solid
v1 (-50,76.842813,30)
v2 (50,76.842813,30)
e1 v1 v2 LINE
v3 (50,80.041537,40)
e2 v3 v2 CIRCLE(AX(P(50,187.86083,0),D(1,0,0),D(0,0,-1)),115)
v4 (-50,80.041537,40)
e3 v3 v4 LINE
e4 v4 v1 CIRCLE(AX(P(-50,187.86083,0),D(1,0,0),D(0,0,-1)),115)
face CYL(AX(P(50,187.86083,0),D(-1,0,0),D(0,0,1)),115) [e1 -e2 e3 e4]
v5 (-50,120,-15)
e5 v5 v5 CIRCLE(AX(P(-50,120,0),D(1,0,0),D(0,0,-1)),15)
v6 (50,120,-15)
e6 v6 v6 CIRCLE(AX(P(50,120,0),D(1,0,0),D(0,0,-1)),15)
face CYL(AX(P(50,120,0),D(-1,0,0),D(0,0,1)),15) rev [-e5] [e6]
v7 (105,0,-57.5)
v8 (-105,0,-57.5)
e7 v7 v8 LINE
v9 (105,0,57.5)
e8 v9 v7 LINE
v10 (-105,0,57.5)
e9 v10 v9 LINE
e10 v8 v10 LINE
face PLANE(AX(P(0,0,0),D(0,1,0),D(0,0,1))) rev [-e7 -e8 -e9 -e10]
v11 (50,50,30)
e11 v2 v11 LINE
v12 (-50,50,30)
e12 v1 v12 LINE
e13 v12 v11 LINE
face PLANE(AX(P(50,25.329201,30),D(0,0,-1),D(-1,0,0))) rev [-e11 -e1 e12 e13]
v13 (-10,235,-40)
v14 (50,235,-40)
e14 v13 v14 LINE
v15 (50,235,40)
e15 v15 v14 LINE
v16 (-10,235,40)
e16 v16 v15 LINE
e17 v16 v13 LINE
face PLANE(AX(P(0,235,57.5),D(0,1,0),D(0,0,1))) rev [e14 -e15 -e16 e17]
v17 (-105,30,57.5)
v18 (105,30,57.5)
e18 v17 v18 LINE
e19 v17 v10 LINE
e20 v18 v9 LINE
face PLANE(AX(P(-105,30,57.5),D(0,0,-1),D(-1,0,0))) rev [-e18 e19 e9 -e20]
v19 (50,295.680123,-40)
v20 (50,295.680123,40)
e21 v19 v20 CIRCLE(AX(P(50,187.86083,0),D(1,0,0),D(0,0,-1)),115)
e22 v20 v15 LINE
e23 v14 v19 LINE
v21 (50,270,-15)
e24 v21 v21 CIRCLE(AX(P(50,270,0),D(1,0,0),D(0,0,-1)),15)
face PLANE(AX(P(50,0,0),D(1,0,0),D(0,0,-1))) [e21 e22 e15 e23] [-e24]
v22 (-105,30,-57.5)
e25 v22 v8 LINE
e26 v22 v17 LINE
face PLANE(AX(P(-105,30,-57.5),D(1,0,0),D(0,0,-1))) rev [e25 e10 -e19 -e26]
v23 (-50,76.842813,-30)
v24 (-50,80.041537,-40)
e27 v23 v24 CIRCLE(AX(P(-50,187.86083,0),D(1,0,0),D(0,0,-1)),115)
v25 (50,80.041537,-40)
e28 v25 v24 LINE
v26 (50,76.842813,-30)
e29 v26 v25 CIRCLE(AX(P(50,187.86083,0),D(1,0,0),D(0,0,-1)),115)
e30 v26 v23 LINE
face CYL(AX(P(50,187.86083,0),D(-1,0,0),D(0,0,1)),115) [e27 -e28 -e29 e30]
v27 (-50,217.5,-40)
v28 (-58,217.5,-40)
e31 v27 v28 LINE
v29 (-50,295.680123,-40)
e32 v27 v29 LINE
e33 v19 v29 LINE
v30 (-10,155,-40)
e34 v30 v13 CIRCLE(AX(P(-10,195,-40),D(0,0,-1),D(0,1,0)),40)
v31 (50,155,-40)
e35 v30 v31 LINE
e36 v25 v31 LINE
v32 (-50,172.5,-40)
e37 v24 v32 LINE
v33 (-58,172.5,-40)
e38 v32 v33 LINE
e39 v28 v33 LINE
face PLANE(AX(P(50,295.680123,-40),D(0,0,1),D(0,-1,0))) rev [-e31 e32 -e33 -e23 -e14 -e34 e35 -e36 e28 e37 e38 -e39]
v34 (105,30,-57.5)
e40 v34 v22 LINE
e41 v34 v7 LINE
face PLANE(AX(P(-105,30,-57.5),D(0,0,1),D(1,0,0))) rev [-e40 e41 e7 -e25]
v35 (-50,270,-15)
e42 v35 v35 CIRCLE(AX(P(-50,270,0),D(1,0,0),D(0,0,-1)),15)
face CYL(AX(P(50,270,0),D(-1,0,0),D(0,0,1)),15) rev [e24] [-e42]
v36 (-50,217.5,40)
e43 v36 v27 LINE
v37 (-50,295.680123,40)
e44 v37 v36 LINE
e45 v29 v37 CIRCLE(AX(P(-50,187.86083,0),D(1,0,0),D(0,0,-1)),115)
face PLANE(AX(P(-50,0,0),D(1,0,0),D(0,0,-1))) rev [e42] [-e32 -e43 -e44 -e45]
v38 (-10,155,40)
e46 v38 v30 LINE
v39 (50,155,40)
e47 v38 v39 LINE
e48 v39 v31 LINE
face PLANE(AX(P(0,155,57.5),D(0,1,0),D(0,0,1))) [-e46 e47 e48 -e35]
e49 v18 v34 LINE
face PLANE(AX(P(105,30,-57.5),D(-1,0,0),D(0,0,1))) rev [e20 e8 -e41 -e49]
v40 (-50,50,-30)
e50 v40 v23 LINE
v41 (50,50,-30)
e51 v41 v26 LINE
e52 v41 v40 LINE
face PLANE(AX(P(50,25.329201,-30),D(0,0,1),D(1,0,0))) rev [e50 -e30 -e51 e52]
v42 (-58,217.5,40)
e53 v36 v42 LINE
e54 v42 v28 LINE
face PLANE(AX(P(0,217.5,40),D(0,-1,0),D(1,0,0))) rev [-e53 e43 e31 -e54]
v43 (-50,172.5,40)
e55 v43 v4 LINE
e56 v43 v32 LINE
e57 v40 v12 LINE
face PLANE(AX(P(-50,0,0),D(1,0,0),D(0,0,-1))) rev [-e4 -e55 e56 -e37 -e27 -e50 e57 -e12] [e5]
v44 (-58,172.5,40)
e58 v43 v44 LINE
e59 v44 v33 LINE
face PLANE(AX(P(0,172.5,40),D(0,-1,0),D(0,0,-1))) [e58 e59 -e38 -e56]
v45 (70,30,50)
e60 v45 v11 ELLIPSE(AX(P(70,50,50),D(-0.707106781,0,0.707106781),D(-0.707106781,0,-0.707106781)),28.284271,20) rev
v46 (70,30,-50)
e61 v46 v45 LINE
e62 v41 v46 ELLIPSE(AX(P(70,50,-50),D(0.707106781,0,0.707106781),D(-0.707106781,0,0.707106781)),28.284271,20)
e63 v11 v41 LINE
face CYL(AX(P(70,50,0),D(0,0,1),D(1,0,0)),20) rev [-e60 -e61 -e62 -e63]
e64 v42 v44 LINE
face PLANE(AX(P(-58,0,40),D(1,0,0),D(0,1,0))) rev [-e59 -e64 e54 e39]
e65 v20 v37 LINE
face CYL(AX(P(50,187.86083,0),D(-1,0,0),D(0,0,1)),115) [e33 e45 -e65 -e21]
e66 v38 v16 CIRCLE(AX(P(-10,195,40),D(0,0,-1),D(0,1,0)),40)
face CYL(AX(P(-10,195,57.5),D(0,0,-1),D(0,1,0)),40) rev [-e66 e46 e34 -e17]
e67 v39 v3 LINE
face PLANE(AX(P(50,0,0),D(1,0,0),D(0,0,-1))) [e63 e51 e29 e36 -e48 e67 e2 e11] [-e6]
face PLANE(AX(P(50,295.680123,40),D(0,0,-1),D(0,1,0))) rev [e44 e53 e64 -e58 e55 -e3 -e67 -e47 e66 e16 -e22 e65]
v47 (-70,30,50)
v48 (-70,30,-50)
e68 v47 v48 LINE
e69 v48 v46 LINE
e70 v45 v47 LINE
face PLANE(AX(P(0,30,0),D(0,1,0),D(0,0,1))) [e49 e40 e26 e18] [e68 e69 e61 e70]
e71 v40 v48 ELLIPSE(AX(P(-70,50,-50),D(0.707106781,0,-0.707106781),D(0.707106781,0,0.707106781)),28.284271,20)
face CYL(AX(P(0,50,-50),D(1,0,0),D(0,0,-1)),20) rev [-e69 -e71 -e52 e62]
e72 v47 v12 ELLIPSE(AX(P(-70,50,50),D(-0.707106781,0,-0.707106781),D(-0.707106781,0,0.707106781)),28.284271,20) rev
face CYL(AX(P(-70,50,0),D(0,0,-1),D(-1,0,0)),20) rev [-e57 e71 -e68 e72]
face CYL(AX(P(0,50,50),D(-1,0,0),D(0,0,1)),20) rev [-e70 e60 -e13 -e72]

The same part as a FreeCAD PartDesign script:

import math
import FreeCAD as App
import Part
import Sketcher
from FreeCAD import Vector
Q = App.Units.Quantity


def edges_at(feature, points):
    """Names of the edges that pass closest to the given points."""
    edges = feature.Shape.Edges
    near = lambda p: min(range(len(edges)), key=lambda i: edges[i].distToShape(Part.Vertex(*p))[0])
    return sorted({f"Edge{near(p) + 1}" for p in points})

doc = App.newDocument("Part")
params = doc.addObject("Spreadsheet::Sheet", "Params")
for row, (alias, value) in enumerate([
    ("sketch1_width", "210 mm"),
    ("sketch1_height", "115 mm"),
    ("pad1_length", "30 mm"),
    ("sketch2_width", "60 mm"),
    ("pad2_length", "100 mm"),
    ("sketch3_diameter", "30 mm"),
    ("sketch3_radius", "115 mm"),
    ("pad3_length", "100 mm"),
    ("fillet_radius", "20 mm"),
    ("sketch4_width", "8 mm"),
    ("sketch4_height", "45 mm"),
    ("pad4_length", "80 mm"),
    ("sketch5_radius", "40 mm"),
    ("sketch5_width", "60 mm"),
], start=1):
    params.set(f"A{row}", alias)
    params.set(f"B{row}", "=" + value)
    params.setAlias(f"B{row}", alias)

body = doc.addObject("PartDesign::Body", "Body")

sketch1 = body.newObject("Sketcher::SketchObject", "Sketch")
sketch1.AttachmentSupport = (doc.getObject("XZ_Plane"), [""])
sketch1.MapMode = "FlatFace"
sketch1.addGeometry(Part.LineSegment(Vector(-105, -58, 0), Vector(-105, 58, 0)), False)
sketch1.addGeometry(Part.LineSegment(Vector(-105, 58, 0), Vector(105, 58, 0)), False)
sketch1.addGeometry(Part.LineSegment(Vector(105, 58, 0), Vector(105, -58, 0)), False)
sketch1.addGeometry(Part.LineSegment(Vector(105, -58, 0), Vector(-105, -58, 0)), False)
sketch1.addConstraint(Sketcher.Constraint("Coincident", 0, 2, 1, 1))
sketch1.addConstraint(Sketcher.Constraint("Coincident", 1, 2, 2, 1))
sketch1.addConstraint(Sketcher.Constraint("Coincident", 2, 2, 3, 1))
sketch1.addConstraint(Sketcher.Constraint("Coincident", 3, 2, 0, 1))
sketch1.addConstraint(Sketcher.Constraint("Vertical", 0))
sketch1.addConstraint(Sketcher.Constraint("Horizontal", 1))
sketch1.addConstraint(Sketcher.Constraint("Vertical", 2))
sketch1.addConstraint(Sketcher.Constraint("Horizontal", 3))
sketch1.addConstraint(Sketcher.Constraint("Symmetric", 0, 2, 2, 2, -1, 1))
sketch1.addConstraint(Sketcher.Constraint("DistanceX", 1, 1, 1, 2, Q("210 mm")))
sketch1.addConstraint(Sketcher.Constraint("DistanceY", 0, 1, 0, 2, Q("115 mm")))
sketch1.setExpression("Constraints[9]", "Params.sketch1_width")
sketch1.setExpression("Constraints[10]", "Params.sketch1_height")
pad1 = body.newObject("PartDesign::Pad", "Pad")
pad1.Profile = sketch1
pad1.setExpression("Length", "Params.pad1_length")
pad1.Reversed = True

sketch2 = body.newObject("Sketcher::SketchObject", "Sketch001")
sketch2.AttachmentSupport = (doc.getObject("YZ_Plane"), [""])
sketch2.MapMode = "FlatFace"
sketch2.addGeometry(Part.LineSegment(Vector(85, 30, 0), Vector(25, 30, 0)), False)
sketch2.addGeometry(Part.LineSegment(Vector(25, 30, 0), Vector(25, -30, 0)), False)
sketch2.addGeometry(Part.LineSegment(Vector(25, -30, 0), Vector(85, -30, 0)), False)
sketch2.addGeometry(Part.LineSegment(Vector(85, -30, 0), Vector(85, 30, 0)), False)
sketch2.addConstraint(Sketcher.Constraint("Coincident", 0, 2, 1, 1))
sketch2.addConstraint(Sketcher.Constraint("Coincident", 1, 2, 2, 1))
sketch2.addConstraint(Sketcher.Constraint("Coincident", 2, 2, 3, 1))
sketch2.addConstraint(Sketcher.Constraint("Coincident", 3, 2, 0, 1))
sketch2.addConstraint(Sketcher.Constraint("Horizontal", 0))
sketch2.addConstraint(Sketcher.Constraint("Vertical", 1))
sketch2.addConstraint(Sketcher.Constraint("Horizontal", 2))
sketch2.addConstraint(Sketcher.Constraint("Vertical", 3))
sketch2.addConstraint(Sketcher.Constraint("Equal", 2, 1))
sketch2.addConstraint(Sketcher.Constraint("DistanceX", 0, 2, 0, 1, Q("60 mm")))
sketch2.addConstraint(Sketcher.Constraint("DistanceY", -1, 1, 0, 2, Q("30 mm")))
sketch2.addConstraint(Sketcher.Constraint("DistanceX", -1, 1, 0, 2, Q("25.329201 mm")))
sketch2.setExpression("Constraints[9]", "Params.sketch2_width")
pad2 = body.newObject("PartDesign::Pad", "Pad001")
pad2.Profile = sketch2
pad2.setExpression("Length", "Params.pad2_length")
pad2.Midplane = True

sketch3 = body.newObject("Sketcher::SketchObject", "Sketch002")
sketch3.AttachmentSupport = (doc.getObject("YZ_Plane"), [""])
sketch3.MapMode = "FlatFace"
sketch3.addGeometry(Part.LineSegment(Vector(80, -40, 0), Vector(296, -40, 0)), False)
sketch3.addGeometry(Part.ArcOfCircle(Part.Circle(Vector(188, 0, 0), Vector(0, 0, 1), 115), math.radians(-20), math.radians(20)), False)
sketch3.addGeometry(Part.LineSegment(Vector(296, 40, 0), Vector(80, 40, 0)), False)
sketch3.addGeometry(Part.ArcOfCircle(Part.Circle(Vector(188, 0, 0), Vector(0, 0, 1), 115), math.radians(160), math.radians(200)), False)
sketch3.addGeometry(Part.Circle(Vector(120, 0, 0), Vector(0, 0, 1), 15), False)
sketch3.addGeometry(Part.Circle(Vector(270, 0, 0), Vector(0, 0, 1), 15), False)
sketch3.addConstraint(Sketcher.Constraint("Coincident", 0, 2, 1, 1))
sketch3.addConstraint(Sketcher.Constraint("Coincident", 1, 2, 2, 1))
sketch3.addConstraint(Sketcher.Constraint("Coincident", 2, 2, 3, 1))
sketch3.addConstraint(Sketcher.Constraint("Coincident", 3, 2, 0, 1))
sketch3.addConstraint(Sketcher.Constraint("Horizontal", 0))
sketch3.addConstraint(Sketcher.Constraint("Horizontal", 2))
sketch3.addConstraint(Sketcher.Constraint("Coincident", 3, 3, 1, 3))
sketch3.addConstraint(Sketcher.Constraint("Equal", 1, 3))
sketch3.addConstraint(Sketcher.Constraint("Equal", 4, 5))
sketch3.addConstraint(Sketcher.Constraint("Symmetric", 0, 2, 1, 2, -1))
sketch3.addConstraint(Sketcher.Constraint("PointOnObject", 4, 3, -1))
sketch3.addConstraint(Sketcher.Constraint("PointOnObject", 5, 3, -1))
sketch3.addConstraint(Sketcher.Constraint("Diameter", 4, Q("30 mm")))
sketch3.addConstraint(Sketcher.Constraint("Radius", 1, Q("115 mm")))
sketch3.addConstraint(Sketcher.Constraint("DistanceX", -1, 1, 4, 3, Q("120 mm")))
sketch3.addConstraint(Sketcher.Constraint("DistanceX", -1, 1, 5, 3, Q("270 mm")))
sketch3.addConstraint(Sketcher.Constraint("DistanceY", 0, 2, -1, 1, Q("40 mm")))
sketch3.addConstraint(Sketcher.Constraint("DistanceX", -1, 1, 1, 3, Q("187.86083 mm")))
sketch3.setExpression("Constraints[12]", "Params.sketch3_diameter")
sketch3.setExpression("Constraints[13]", "Params.sketch3_radius")
pad3 = body.newObject("PartDesign::Pad", "Pad002")
pad3.Profile = sketch3
pad3.setExpression("Length", "Params.pad3_length")
pad3.Midplane = True
doc.recompute()

fillet = body.newObject("PartDesign::Fillet", "Fillet")
fillet.Base = (pad3, edges_at(pad3, [
    (-50, 30, 0),
    (0, 30, 30),
    (0, 30, -30),
    (50, 30, 0),
]))
fillet.setExpression("Radius", "Params.fillet_radius")

sketch4 = body.newObject("Sketcher::SketchObject", "Sketch003")
sketch4.AttachmentSupport = (doc.getObject("XY_Plane"), [""])
sketch4.MapMode = "FlatFace"
sketch4.AttachmentOffset = App.Placement(Vector(0, 0, -40), App.Rotation())
sketch4.addGeometry(Part.LineSegment(Vector(-58, 218, 0), Vector(-50, 218, 0)), False)
sketch4.addGeometry(Part.LineSegment(Vector(-50, 218, 0), Vector(-50, 172, 0)), False)
sketch4.addGeometry(Part.LineSegment(Vector(-50, 172, 0), Vector(-58, 172, 0)), False)
sketch4.addGeometry(Part.LineSegment(Vector(-58, 172, 0), Vector(-58, 218, 0)), False)
sketch4.addConstraint(Sketcher.Constraint("Coincident", 0, 2, 1, 1))
sketch4.addConstraint(Sketcher.Constraint("Coincident", 1, 2, 2, 1))
sketch4.addConstraint(Sketcher.Constraint("Coincident", 2, 2, 3, 1))
sketch4.addConstraint(Sketcher.Constraint("Coincident", 3, 2, 0, 1))
sketch4.addConstraint(Sketcher.Constraint("Horizontal", 0))
sketch4.addConstraint(Sketcher.Constraint("Vertical", 1))
sketch4.addConstraint(Sketcher.Constraint("Horizontal", 2))
sketch4.addConstraint(Sketcher.Constraint("Vertical", 3))
sketch4.addConstraint(Sketcher.Constraint("DistanceX", 0, 1, 0, 2, Q("8 mm")))
sketch4.addConstraint(Sketcher.Constraint("DistanceY", 1, 2, 1, 1, Q("45 mm")))
sketch4.addConstraint(Sketcher.Constraint("DistanceX", 0, 2, -1, 1, Q("50 mm")))
sketch4.addConstraint(Sketcher.Constraint("DistanceY", -1, 1, 0, 2, Q("217.5 mm")))
sketch4.setExpression("Constraints[8]", "Params.sketch4_width")
sketch4.setExpression("Constraints[9]", "Params.sketch4_height")
pad4 = body.newObject("PartDesign::Pad", "Pad003")
pad4.Profile = sketch4
pad4.setExpression("Length", "Params.pad4_length")

sketch5 = body.newObject("Sketcher::SketchObject", "Sketch004")
sketch5.AttachmentSupport = (doc.getObject("XY_Plane"), [""])
sketch5.MapMode = "FlatFace"
sketch5.AttachmentOffset = App.Placement(Vector(0, 0, -40), App.Rotation())
sketch5.addGeometry(Part.ArcOfCircle(Part.Circle(Vector(-10, 195, 0), Vector(0, 0, 1), 40), math.radians(90), math.radians(180)), False)
sketch5.addGeometry(Part.LineSegment(Vector(-10, 235, 0), Vector(50, 235, 0)), False)
sketch5.addGeometry(Part.LineSegment(Vector(50, 235, 0), Vector(50, 155, 0)), False)
sketch5.addGeometry(Part.LineSegment(Vector(50, 155, 0), Vector(-10, 155, 0)), False)
sketch5.addGeometry(Part.ArcOfCircle(Part.Circle(Vector(-10, 195, 0), Vector(0, 0, 1), 40), math.radians(-180), math.radians(-90)), False)
sketch5.addConstraint(Sketcher.Constraint("Tangent", 0, 1, 1, 1))
sketch5.addConstraint(Sketcher.Constraint("Coincident", 1, 2, 2, 1))
sketch5.addConstraint(Sketcher.Constraint("Coincident", 2, 2, 3, 1))
sketch5.addConstraint(Sketcher.Constraint("Tangent", 3, 2, 4, 2))
sketch5.addConstraint(Sketcher.Constraint("Tangent", 4, 1, 0, 2))
sketch5.addConstraint(Sketcher.Constraint("Horizontal", 1))
sketch5.addConstraint(Sketcher.Constraint("Vertical", 2))
sketch5.addConstraint(Sketcher.Constraint("Horizontal", 3))
sketch5.addConstraint(Sketcher.Constraint("Equal", 0, 4))
sketch5.addConstraint(Sketcher.Constraint("Horizontal", 0, 3, 4, 1))
sketch5.addConstraint(Sketcher.Constraint("Radius", 0, Q("40 mm")))
sketch5.addConstraint(Sketcher.Constraint("DistanceX", 1, 1, 1, 2, Q("60 mm")))
sketch5.addConstraint(Sketcher.Constraint("DistanceX", 0, 3, -1, 1, Q("10 mm")))
sketch5.addConstraint(Sketcher.Constraint("DistanceY", -1, 1, 0, 3, Q("195 mm")))
sketch5.setExpression("Constraints[10]", "Params.sketch5_radius")
sketch5.setExpression("Constraints[11]", "Params.sketch5_width")
pocket1 = body.newObject("PartDesign::Pocket", "Pocket")
pocket1.Profile = sketch5
pocket1.Type = "ThroughAll"
pocket1.Reversed = True

doc.recompute()
